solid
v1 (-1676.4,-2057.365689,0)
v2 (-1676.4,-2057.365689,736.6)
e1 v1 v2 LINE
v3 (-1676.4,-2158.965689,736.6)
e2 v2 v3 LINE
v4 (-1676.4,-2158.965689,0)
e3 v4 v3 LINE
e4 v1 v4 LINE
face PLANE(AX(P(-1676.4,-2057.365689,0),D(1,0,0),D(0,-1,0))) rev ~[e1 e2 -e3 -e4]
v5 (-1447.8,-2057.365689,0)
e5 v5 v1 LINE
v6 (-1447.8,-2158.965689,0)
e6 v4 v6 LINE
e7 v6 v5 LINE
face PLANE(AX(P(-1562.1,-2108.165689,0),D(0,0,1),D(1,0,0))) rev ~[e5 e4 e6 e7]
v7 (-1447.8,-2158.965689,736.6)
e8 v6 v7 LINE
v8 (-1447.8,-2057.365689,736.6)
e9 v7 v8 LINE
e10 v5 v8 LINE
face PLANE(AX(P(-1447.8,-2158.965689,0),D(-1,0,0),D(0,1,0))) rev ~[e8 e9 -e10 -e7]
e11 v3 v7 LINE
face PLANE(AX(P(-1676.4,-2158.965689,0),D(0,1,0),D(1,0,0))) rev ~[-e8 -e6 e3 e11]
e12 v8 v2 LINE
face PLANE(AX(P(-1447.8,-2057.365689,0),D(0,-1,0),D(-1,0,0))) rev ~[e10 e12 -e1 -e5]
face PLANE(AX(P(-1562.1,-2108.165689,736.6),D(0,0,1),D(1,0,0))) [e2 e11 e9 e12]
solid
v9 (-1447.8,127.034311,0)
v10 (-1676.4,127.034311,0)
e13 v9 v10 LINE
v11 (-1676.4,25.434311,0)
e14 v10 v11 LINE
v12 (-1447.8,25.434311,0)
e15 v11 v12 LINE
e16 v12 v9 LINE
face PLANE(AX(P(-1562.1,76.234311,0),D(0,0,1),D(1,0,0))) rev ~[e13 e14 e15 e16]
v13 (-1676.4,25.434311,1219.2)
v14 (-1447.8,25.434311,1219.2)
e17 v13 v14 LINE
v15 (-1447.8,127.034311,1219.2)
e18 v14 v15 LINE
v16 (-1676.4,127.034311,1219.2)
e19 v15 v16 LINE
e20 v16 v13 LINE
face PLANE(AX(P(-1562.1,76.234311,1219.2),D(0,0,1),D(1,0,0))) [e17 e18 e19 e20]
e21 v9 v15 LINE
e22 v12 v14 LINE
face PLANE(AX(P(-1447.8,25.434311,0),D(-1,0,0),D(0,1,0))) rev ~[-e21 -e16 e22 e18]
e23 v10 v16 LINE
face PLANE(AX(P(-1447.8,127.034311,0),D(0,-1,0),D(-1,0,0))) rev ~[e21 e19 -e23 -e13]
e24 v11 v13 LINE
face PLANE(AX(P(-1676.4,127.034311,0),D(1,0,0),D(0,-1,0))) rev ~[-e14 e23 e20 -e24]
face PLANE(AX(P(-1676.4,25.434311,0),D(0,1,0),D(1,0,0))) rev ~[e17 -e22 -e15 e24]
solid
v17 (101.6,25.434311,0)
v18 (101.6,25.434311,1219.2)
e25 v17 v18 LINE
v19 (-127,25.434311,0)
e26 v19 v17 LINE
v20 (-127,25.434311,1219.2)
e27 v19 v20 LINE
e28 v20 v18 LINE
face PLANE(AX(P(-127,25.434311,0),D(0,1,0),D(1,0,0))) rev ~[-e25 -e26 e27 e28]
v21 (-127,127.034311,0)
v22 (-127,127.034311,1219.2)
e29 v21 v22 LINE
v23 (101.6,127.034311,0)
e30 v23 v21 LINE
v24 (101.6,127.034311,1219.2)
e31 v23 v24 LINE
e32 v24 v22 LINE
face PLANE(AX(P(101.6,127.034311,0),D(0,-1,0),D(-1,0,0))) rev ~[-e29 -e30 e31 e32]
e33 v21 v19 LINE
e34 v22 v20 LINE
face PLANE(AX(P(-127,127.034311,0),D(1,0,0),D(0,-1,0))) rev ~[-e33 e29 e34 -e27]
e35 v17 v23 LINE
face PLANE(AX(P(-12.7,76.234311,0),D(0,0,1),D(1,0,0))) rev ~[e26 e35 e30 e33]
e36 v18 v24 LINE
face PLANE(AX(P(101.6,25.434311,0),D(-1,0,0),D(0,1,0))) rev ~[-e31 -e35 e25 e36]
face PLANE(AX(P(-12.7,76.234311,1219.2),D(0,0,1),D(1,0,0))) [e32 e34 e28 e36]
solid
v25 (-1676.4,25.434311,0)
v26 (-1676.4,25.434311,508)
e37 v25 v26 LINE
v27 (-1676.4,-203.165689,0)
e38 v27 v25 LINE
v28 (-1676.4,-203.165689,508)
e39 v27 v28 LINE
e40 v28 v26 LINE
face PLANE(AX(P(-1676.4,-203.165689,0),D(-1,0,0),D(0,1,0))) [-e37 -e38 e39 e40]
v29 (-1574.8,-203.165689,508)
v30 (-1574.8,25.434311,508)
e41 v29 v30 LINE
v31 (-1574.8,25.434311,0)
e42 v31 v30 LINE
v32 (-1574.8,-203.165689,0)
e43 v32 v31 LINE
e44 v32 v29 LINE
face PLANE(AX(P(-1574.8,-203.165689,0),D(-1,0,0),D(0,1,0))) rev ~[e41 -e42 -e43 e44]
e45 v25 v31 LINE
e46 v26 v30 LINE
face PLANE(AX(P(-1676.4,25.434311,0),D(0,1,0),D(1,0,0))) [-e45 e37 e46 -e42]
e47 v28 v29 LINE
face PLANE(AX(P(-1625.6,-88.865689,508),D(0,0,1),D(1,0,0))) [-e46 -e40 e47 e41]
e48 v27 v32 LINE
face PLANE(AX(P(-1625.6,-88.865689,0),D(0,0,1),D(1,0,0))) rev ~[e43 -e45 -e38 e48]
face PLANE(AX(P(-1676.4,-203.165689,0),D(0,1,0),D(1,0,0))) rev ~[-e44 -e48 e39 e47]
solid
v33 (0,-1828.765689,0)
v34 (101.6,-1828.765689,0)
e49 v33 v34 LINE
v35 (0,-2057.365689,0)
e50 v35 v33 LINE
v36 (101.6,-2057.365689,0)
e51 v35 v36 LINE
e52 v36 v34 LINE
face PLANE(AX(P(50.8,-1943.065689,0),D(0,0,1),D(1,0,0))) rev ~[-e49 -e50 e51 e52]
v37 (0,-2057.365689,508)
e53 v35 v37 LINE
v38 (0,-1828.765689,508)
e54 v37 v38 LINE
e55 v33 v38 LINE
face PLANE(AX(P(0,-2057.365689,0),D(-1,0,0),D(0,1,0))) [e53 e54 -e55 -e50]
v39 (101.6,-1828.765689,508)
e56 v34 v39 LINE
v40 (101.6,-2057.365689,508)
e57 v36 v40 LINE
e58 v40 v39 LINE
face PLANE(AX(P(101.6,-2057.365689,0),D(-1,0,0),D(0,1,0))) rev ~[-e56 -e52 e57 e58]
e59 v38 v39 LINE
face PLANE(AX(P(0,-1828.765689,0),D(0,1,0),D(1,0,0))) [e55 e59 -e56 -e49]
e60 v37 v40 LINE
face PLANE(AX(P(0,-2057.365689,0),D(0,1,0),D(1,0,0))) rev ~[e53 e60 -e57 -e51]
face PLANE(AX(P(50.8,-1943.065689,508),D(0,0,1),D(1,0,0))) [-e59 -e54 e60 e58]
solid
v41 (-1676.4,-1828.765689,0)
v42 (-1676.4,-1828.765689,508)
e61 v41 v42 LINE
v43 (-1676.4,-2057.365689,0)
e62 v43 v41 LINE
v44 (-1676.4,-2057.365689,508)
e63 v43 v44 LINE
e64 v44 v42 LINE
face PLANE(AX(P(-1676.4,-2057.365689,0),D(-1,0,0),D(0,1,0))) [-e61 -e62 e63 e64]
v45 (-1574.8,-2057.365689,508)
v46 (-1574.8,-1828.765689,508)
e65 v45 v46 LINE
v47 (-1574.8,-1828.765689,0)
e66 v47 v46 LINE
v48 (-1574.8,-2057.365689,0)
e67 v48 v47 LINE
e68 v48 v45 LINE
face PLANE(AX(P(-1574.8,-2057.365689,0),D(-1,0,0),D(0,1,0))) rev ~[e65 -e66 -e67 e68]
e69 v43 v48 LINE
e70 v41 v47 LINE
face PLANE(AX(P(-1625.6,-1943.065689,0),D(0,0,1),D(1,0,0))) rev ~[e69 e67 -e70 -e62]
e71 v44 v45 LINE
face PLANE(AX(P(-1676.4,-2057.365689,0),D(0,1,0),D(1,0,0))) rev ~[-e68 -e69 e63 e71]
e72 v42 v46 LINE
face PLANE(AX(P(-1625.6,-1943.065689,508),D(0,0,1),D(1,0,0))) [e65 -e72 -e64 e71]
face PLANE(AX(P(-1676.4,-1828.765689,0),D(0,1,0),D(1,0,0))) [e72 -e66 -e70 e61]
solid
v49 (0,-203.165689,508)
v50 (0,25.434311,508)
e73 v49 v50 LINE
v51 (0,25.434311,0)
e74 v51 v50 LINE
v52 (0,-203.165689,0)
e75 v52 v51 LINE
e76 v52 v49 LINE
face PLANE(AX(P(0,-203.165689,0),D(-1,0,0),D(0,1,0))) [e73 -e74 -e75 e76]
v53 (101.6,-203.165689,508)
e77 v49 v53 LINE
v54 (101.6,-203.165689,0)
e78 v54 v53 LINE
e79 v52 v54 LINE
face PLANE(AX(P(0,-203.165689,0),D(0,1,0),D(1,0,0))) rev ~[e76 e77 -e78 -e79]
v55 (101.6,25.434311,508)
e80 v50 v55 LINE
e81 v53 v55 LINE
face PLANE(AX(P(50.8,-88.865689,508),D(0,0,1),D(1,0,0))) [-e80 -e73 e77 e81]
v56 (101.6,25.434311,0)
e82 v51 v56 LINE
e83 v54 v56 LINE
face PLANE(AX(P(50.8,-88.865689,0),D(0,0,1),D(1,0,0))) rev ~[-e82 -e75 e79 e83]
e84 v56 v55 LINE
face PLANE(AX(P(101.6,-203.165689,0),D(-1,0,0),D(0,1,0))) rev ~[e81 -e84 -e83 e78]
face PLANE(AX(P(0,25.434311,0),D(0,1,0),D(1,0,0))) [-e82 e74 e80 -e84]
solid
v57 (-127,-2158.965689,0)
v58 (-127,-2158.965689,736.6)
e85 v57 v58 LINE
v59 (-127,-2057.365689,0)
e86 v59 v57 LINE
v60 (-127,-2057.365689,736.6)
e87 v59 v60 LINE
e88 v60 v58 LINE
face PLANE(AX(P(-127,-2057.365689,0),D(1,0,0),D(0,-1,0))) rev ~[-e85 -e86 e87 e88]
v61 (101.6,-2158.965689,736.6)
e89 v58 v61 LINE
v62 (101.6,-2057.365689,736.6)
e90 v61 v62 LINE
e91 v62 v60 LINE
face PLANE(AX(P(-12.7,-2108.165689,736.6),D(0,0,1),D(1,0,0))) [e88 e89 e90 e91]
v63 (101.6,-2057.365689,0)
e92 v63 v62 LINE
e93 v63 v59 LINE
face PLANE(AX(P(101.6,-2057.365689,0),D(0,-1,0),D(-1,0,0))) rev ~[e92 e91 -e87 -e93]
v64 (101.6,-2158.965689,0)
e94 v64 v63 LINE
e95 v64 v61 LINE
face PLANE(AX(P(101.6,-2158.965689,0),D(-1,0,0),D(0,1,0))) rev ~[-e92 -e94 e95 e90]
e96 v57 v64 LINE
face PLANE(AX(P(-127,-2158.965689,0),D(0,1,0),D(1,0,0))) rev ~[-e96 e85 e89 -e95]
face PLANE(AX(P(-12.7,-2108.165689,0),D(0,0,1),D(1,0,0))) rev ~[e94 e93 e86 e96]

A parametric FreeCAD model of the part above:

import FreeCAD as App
import Part
import Sketcher
Q = App.Units.Quantity


def add_polygon(sketch, points):
    """Adds a closed chain of lines whose ends are joined by coincident constraints."""
    first, n = sketch.GeometryCount, len(points)
    for a, b in zip(points, points[1:] + points[:1]):
        sketch.addGeometry(Part.LineSegment(App.Vector(*a, 0), App.Vector(*b, 0)), False)
    for i in range(n):
        sketch.addConstraint(Sketcher.Constraint("Coincident", first + i, 2, first + (i + 1) % n, 1))

doc = App.newDocument("Part")
params = doc.addObject("Spreadsheet::Sheet", "Params")
for row, (alias, value) in enumerate([
    ("sketch1_width", "9 in"),
    ("sketch1_height", "4 in"),
    ("pad1_length", "29 in"),
    ("sketch2_width", "9 in"),
    ("sketch2_height", "4 in"),
    ("pad2_length", "48 in"),
    ("sketch3_width", "4 in"),
    ("sketch3_height", "9 in"),
    ("pad3_length", "20 in"),
], start=1):
    params.set(f"A{row}", alias)
    params.set(f"B{row}", "=" + value)
    params.setAlias(f"B{row}", alias)

body = doc.addObject("PartDesign::Body", "Body")
body.AllowCompound = True

sketch1 = doc.addObject("Sketcher::SketchObject", "Sketch")
body.addObject(sketch1)
sketch1.AttachmentSupport = (doc.XY_Plane, [""])
sketch1.MapMode = "FlatFace"
add_polygon(sketch1, [(-1448, -2159), (-1448, -2057), (-1676, -2057), (-1676, -2159)])
add_polygon(sketch1, [(102, -2159), (102, -2057), (-127, -2057), (-127, -2159)])
sketch1.addConstraint(Sketcher.Constraint("Vertical", 0))
sketch1.addConstraint(Sketcher.Constraint("Horizontal", 1))
sketch1.addConstraint(Sketcher.Constraint("Vertical", 2))
sketch1.addConstraint(Sketcher.Constraint("Horizontal", 3))
sketch1.addConstraint(Sketcher.Constraint("Vertical", 4))
sketch1.addConstraint(Sketcher.Constraint("Horizontal", 5))
sketch1.addConstraint(Sketcher.Constraint("Vertical", 6))
sketch1.addConstraint(Sketcher.Constraint("Horizontal", 7))
sketch1.addConstraint(Sketcher.Constraint("Horizontal", 1, 2, 4, 2))
sketch1.addConstraint(Sketcher.Constraint("Horizontal", 3, 2, 6, 2))
sketch1.addConstraint(Sketcher.Constraint("Equal", 3, 5))
sketch1.addConstraint(Sketcher.Constraint("DistanceX", 1, 2, 1, 1, Q("9 in")))
sketch1.addConstraint(Sketcher.Constraint("DistanceY", 0, 1, 0, 2, Q("4 in")))
sketch1.addConstraint(Sketcher.Constraint("DistanceX", 0, 2, -1, 1, Q("57 in")))
sketch1.addConstraint(Sketcher.Constraint("DistanceX", -1, 1, 4, 2, Q("4 in")))
sketch1.addConstraint(Sketcher.Constraint("DistanceY", 0, 2, -1, 1, 2057.365689))
sketch1.setExpression("Constraints[19]", "Params.sketch1_width")
sketch1.setExpression("Constraints[20]", "Params.sketch1_height")
pad1 = doc.addObject("PartDesign::Pad", "Pad")
body.addObject(pad1)
pad1.Profile = sketch1
pad1.setExpression("Length", "Params.pad1_length")
body2 = doc.addObject("PartDesign::Body", "Body001")
body2.AllowCompound = True

sketch2 = doc.addObject("Sketcher::SketchObject", "Sketch001")
body2.addObject(sketch2)
sketch2.AttachmentSupport = (doc.getObject("XY_Plane001"), [""])
sketch2.MapMode = "FlatFace"
add_polygon(sketch2, [(-1448, 25), (-1448, 127), (-1676, 127), (-1676, 25)])
add_polygon(sketch2, [(-127, 127), (-127, 25), (102, 25), (102, 127)])
sketch2.addConstraint(Sketcher.Constraint("Vertical", 0))
sketch2.addConstraint(Sketcher.Constraint("Horizontal", 1))
sketch2.addConstraint(Sketcher.Constraint("Vertical", 2))
sketch2.addConstraint(Sketcher.Constraint("Horizontal", 3))
sketch2.addConstraint(Sketcher.Constraint("Vertical", 4))
sketch2.addConstraint(Sketcher.Constraint("Horizontal", 5))
sketch2.addConstraint(Sketcher.Constraint("Vertical", 6))
sketch2.addConstraint(Sketcher.Constraint("Horizontal", 7))
sketch2.addConstraint(Sketcher.Constraint("Horizontal", 3, 2, 4, 2))
sketch2.addConstraint(Sketcher.Constraint("Horizontal", 1, 2, 6, 2))
sketch2.addConstraint(Sketcher.Constraint("Equal", 3, 5))
sketch2.addConstraint(Sketcher.Constraint("DistanceX", 1, 2, 1, 1, Q("9 in")))
sketch2.addConstraint(Sketcher.Constraint("DistanceY", 0, 1, 0, 2, Q("4 in")))
sketch2.addConstraint(Sketcher.Constraint("DistanceX", 0, 2, -1, 1, Q("57 in")))
sketch2.addConstraint(Sketcher.Constraint("DistanceX", 4, 2, -1, 1, Q("5 in")))
sketch2.addConstraint(Sketcher.Constraint("DistanceY", -1, 1, 0, 2, 127.034311))
sketch2.setExpression("Constraints[19]", "Params.sketch2_width")
sketch2.setExpression("Constraints[20]", "Params.sketch2_height")
pad2 = doc.addObject("PartDesign::Pad", "Pad001")
body2.addObject(pad2)
pad2.Profile = sketch2
pad2.setExpression("Length", "Params.pad2_length")
body3 = doc.addObject("PartDesign::Body", "Body002")
body3.AllowCompound = True

sketch3 = doc.addObject("Sketcher::SketchObject", "Sketch002")
body3.addObject(sketch3)
sketch3.AttachmentSupport = (doc.getObject("XY_Plane002"), [""])
sketch3.MapMode = "FlatFace"
add_polygon(sketch3, [(-1676, 25), (-1676, -203), (-1575, -203), (-1575, 25)])
add_polygon(sketch3, [(0, 25), (0, -203), (102, -203), (102, 25)])
add_polygon(sketch3, [(-1676, -1829), (-1676, -2057), (-1575, -2057), (-1575, -1829)])
add_polygon(sketch3, [(0, -1829), (0, -2057), (102, -2057), (102, -1829)])
sketch3.addConstraint(Sketcher.Constraint("Vertical", 0))
sketch3.addConstraint(Sketcher.Constraint("Horizontal", 1))
sketch3.addConstraint(Sketcher.Constraint("Vertical", 2))
sketch3.addConstraint(Sketcher.Constraint("Horizontal", 3))
sketch3.addConstraint(Sketcher.Constraint("Vertical", 4))
sketch3.addConstraint(Sketcher.Constraint("Horizontal", 5))
sketch3.addConstraint(Sketcher.Constraint("Vertical", 6))
sketch3.addConstraint(Sketcher.Constraint("Horizontal", 7))
sketch3.addConstraint(Sketcher.Constraint("Vertical", 8))
sketch3.addConstraint(Sketcher.Constraint("Horizontal", 9))
sketch3.addConstraint(Sketcher.Constraint("Vertical", 10))
sketch3.addConstraint(Sketcher.Constraint("Horizontal", 11))
sketch3.addConstraint(Sketcher.Constraint("Vertical", 12))
sketch3.addConstraint(Sketcher.Constraint("Horizontal", 13))
sketch3.addConstraint(Sketcher.Constraint("Vertical", 14))
sketch3.addConstraint(Sketcher.Constraint("Horizontal", 15))
sketch3.addConstraint(Sketcher.Constraint("PointOnObject", 4, 2, -2))
sketch3.addConstraint(Sketcher.Constraint("PointOnObject", 12, 2, -2))
sketch3.addConstraint(Sketcher.Constraint("Horizontal", 1, 2, 4, 2))
sketch3.addConstraint(Sketcher.Constraint("Horizontal", 3, 2, 6, 2))
sketch3.addConstraint(Sketcher.Constraint("Horizontal", 9, 2, 12, 2))
sketch3.addConstraint(Sketcher.Constraint("Horizontal", 11, 2, 14, 2))
sketch3.addConstraint(Sketcher.Constraint("Vertical", 3, 2, 8, 2))
sketch3.addConstraint(Sketcher.Constraint("Vertical", 2, 2, 9, 2))
sketch3.addConstraint(Sketcher.Constraint("Vertical", 6, 2, 13, 2))
sketch3.addConstraint(Sketcher.Constraint("Equal", 3, 5))
sketch3.addConstraint(Sketcher.Constraint("Equal", 6, 8))
sketch3.addConstraint(Sketcher.Constraint("DistanceX", 1, 1, 1, 2, Q("4 in")))
sketch3.addConstraint(Sketcher.Constraint("DistanceY", 0, 2, 0, 1, Q("9 in")))
sketch3.addConstraint(Sketcher.Constraint("DistanceX", 0, 2, -1, 1, Q("66 in")))
sketch3.addConstraint(Sketcher.Constraint("DistanceY", 8, 2, 0, 2, Q("73 in")))
sketch3.addConstraint(Sketcher.Constraint("DistanceY", 0, 2, -1, 1, 203.165689))
sketch3.setExpression("Constraints[43]", "Params.sketch3_width")
sketch3.setExpression("Constraints[44]", "Params.sketch3_height")
pad3 = doc.addObject("PartDesign::Pad", "Pad002")
body3.addObject(pad3)
pad3.Profile = sketch3
pad3.setExpression("Length", "Params.pad3_length")

doc.recompute()
